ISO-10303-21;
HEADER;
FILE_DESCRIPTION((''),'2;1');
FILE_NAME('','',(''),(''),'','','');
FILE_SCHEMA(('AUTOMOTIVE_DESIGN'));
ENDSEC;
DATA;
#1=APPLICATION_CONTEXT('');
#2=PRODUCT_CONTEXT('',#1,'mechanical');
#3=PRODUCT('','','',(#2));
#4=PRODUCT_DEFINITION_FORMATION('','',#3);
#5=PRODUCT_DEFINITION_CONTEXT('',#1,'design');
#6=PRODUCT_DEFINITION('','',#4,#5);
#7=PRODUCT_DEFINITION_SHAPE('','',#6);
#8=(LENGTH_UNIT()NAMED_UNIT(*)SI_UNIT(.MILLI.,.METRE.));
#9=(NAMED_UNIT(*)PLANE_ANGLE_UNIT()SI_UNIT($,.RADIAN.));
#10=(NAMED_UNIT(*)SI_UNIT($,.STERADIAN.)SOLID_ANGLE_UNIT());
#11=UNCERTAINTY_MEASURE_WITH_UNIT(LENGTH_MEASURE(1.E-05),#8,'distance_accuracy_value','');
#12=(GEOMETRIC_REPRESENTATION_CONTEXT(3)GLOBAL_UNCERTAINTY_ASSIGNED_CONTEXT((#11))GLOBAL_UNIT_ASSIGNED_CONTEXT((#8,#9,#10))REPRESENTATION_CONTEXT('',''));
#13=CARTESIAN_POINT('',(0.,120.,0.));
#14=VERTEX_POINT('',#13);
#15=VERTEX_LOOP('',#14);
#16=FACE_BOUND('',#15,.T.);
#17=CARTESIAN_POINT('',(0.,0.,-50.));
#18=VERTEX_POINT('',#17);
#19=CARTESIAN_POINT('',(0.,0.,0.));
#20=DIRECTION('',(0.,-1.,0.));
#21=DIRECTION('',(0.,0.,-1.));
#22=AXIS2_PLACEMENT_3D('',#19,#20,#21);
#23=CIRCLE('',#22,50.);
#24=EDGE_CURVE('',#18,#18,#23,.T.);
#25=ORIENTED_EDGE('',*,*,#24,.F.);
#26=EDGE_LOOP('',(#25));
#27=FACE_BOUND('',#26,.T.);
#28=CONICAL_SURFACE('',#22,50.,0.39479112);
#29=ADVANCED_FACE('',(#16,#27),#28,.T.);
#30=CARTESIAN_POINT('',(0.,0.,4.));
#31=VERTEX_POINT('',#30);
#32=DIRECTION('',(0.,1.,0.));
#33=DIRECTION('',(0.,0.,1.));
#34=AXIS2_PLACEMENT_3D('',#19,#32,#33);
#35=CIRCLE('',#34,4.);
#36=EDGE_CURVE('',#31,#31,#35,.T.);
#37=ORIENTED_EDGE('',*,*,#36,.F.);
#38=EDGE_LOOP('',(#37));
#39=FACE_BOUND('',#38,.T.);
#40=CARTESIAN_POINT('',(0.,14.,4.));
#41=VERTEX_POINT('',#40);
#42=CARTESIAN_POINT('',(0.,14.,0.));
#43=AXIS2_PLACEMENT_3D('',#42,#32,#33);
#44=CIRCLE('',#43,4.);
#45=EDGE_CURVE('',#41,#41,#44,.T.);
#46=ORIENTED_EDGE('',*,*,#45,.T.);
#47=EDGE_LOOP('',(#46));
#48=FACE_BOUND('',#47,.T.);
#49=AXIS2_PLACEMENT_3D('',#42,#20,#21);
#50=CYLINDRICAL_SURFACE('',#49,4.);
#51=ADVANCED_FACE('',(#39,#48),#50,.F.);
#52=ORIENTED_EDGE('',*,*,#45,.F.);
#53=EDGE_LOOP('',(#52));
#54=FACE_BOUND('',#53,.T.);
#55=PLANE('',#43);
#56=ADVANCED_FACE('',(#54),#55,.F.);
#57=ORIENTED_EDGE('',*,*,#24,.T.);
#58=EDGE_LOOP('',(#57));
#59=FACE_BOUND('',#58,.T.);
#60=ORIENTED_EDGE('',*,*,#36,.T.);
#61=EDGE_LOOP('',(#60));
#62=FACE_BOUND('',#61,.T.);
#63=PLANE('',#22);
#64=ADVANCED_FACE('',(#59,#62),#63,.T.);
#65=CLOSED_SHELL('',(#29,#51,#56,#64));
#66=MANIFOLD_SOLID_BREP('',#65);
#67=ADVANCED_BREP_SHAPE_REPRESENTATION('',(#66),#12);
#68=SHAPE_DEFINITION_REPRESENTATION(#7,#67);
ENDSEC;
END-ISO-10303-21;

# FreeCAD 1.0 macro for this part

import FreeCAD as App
import Part
import Sketcher
from FreeCAD import Vector


def add_polygon(sketch, points):
    """Adds a closed chain of lines whose ends are joined by coincident constraints."""
    first, n = sketch.GeometryCount, len(points)
    for a, b in zip(points, points[1:] + points[:1]):
        sketch.addGeometry(Part.LineSegment(App.Vector(*a, 0), App.Vector(*b, 0)), False)
    for i in range(n):
        sketch.addConstraint(Sketcher.Constraint("Coincident", first + i, 2, first + (i + 1) % n, 1))

doc = App.newDocument("Part")
params = doc.addObject("Spreadsheet::Sheet", "Params")
for row, (alias, value) in enumerate([
    ("sketch1_width", "50 mm"),
    ("sketch1_height", "120 mm"),
    ("revolution_angle", "360 deg"),
    ("sketch2_diameter", "8 mm"),
    ("pocket1_length", "14 mm"),
], start=1):
    params.set(f"A{row}", alias)
    params.set(f"B{row}", "=" + value)
    params.setAlias(f"B{row}", alias)

body = doc.addObject("PartDesign::Body", "Body")

# Sketch on XY plane
sketch1 = body.newObject("Sketcher::SketchObject", "Sketch")
sketch1.AttachmentSupport = (doc.getObject("XY_Plane"), [""])
sketch1.MapMode = "FlatFace"
add_polygon(sketch1, [(0, 0), (50, 0), (0, 120)])  # lines 0-2
sketch1.addConstraint([
    Sketcher.Constraint("Horizontal", 0),
    Sketcher.Constraint("Vertical", 2),
    Sketcher.Constraint("Coincident", 2, 2, -1, 1),
    Sketcher.Constraint("DistanceX", 0, 1, 0, 2, 50.0),
    Sketcher.Constraint("DistanceY", 2, 2, 2, 1, 120.0),
])
sketch1.setExpression("Constraints[6]", "Params.sketch1_width")
sketch1.setExpression("Constraints[7]", "Params.sketch1_height")
revolution = body.newObject("PartDesign::Revolution", "Revolution")
revolution.Profile = sketch1
revolution.ReferenceAxis = (sketch1, ["V_Axis"])
revolution.setExpression("Angle", "Params.revolution_angle")

# Sketch on XZ plane
sketch2 = body.newObject("Sketcher::SketchObject", "Sketch001")
sketch2.AttachmentSupport = (doc.getObject("XZ_Plane"), [""])
sketch2.MapMode = "FlatFace"
sketch2.addGeometry(Part.Circle(Vector(0, 0, 0), Vector(0, 0, 1), 4), False)
sketch2.addConstraint([
    Sketcher.Constraint("Coincident", 0, 3, -1, 1),
    Sketcher.Constraint("Diameter", 0, 8.0),
])
sketch2.setExpression("Constraints[1]", "Params.sketch2_diameter")
pocket1 = body.newObject("PartDesign::Pocket", "Pocket")
pocket1.Profile = sketch2
pocket1.setExpression("Length", "Params.pocket1_length")

doc.recompute()
